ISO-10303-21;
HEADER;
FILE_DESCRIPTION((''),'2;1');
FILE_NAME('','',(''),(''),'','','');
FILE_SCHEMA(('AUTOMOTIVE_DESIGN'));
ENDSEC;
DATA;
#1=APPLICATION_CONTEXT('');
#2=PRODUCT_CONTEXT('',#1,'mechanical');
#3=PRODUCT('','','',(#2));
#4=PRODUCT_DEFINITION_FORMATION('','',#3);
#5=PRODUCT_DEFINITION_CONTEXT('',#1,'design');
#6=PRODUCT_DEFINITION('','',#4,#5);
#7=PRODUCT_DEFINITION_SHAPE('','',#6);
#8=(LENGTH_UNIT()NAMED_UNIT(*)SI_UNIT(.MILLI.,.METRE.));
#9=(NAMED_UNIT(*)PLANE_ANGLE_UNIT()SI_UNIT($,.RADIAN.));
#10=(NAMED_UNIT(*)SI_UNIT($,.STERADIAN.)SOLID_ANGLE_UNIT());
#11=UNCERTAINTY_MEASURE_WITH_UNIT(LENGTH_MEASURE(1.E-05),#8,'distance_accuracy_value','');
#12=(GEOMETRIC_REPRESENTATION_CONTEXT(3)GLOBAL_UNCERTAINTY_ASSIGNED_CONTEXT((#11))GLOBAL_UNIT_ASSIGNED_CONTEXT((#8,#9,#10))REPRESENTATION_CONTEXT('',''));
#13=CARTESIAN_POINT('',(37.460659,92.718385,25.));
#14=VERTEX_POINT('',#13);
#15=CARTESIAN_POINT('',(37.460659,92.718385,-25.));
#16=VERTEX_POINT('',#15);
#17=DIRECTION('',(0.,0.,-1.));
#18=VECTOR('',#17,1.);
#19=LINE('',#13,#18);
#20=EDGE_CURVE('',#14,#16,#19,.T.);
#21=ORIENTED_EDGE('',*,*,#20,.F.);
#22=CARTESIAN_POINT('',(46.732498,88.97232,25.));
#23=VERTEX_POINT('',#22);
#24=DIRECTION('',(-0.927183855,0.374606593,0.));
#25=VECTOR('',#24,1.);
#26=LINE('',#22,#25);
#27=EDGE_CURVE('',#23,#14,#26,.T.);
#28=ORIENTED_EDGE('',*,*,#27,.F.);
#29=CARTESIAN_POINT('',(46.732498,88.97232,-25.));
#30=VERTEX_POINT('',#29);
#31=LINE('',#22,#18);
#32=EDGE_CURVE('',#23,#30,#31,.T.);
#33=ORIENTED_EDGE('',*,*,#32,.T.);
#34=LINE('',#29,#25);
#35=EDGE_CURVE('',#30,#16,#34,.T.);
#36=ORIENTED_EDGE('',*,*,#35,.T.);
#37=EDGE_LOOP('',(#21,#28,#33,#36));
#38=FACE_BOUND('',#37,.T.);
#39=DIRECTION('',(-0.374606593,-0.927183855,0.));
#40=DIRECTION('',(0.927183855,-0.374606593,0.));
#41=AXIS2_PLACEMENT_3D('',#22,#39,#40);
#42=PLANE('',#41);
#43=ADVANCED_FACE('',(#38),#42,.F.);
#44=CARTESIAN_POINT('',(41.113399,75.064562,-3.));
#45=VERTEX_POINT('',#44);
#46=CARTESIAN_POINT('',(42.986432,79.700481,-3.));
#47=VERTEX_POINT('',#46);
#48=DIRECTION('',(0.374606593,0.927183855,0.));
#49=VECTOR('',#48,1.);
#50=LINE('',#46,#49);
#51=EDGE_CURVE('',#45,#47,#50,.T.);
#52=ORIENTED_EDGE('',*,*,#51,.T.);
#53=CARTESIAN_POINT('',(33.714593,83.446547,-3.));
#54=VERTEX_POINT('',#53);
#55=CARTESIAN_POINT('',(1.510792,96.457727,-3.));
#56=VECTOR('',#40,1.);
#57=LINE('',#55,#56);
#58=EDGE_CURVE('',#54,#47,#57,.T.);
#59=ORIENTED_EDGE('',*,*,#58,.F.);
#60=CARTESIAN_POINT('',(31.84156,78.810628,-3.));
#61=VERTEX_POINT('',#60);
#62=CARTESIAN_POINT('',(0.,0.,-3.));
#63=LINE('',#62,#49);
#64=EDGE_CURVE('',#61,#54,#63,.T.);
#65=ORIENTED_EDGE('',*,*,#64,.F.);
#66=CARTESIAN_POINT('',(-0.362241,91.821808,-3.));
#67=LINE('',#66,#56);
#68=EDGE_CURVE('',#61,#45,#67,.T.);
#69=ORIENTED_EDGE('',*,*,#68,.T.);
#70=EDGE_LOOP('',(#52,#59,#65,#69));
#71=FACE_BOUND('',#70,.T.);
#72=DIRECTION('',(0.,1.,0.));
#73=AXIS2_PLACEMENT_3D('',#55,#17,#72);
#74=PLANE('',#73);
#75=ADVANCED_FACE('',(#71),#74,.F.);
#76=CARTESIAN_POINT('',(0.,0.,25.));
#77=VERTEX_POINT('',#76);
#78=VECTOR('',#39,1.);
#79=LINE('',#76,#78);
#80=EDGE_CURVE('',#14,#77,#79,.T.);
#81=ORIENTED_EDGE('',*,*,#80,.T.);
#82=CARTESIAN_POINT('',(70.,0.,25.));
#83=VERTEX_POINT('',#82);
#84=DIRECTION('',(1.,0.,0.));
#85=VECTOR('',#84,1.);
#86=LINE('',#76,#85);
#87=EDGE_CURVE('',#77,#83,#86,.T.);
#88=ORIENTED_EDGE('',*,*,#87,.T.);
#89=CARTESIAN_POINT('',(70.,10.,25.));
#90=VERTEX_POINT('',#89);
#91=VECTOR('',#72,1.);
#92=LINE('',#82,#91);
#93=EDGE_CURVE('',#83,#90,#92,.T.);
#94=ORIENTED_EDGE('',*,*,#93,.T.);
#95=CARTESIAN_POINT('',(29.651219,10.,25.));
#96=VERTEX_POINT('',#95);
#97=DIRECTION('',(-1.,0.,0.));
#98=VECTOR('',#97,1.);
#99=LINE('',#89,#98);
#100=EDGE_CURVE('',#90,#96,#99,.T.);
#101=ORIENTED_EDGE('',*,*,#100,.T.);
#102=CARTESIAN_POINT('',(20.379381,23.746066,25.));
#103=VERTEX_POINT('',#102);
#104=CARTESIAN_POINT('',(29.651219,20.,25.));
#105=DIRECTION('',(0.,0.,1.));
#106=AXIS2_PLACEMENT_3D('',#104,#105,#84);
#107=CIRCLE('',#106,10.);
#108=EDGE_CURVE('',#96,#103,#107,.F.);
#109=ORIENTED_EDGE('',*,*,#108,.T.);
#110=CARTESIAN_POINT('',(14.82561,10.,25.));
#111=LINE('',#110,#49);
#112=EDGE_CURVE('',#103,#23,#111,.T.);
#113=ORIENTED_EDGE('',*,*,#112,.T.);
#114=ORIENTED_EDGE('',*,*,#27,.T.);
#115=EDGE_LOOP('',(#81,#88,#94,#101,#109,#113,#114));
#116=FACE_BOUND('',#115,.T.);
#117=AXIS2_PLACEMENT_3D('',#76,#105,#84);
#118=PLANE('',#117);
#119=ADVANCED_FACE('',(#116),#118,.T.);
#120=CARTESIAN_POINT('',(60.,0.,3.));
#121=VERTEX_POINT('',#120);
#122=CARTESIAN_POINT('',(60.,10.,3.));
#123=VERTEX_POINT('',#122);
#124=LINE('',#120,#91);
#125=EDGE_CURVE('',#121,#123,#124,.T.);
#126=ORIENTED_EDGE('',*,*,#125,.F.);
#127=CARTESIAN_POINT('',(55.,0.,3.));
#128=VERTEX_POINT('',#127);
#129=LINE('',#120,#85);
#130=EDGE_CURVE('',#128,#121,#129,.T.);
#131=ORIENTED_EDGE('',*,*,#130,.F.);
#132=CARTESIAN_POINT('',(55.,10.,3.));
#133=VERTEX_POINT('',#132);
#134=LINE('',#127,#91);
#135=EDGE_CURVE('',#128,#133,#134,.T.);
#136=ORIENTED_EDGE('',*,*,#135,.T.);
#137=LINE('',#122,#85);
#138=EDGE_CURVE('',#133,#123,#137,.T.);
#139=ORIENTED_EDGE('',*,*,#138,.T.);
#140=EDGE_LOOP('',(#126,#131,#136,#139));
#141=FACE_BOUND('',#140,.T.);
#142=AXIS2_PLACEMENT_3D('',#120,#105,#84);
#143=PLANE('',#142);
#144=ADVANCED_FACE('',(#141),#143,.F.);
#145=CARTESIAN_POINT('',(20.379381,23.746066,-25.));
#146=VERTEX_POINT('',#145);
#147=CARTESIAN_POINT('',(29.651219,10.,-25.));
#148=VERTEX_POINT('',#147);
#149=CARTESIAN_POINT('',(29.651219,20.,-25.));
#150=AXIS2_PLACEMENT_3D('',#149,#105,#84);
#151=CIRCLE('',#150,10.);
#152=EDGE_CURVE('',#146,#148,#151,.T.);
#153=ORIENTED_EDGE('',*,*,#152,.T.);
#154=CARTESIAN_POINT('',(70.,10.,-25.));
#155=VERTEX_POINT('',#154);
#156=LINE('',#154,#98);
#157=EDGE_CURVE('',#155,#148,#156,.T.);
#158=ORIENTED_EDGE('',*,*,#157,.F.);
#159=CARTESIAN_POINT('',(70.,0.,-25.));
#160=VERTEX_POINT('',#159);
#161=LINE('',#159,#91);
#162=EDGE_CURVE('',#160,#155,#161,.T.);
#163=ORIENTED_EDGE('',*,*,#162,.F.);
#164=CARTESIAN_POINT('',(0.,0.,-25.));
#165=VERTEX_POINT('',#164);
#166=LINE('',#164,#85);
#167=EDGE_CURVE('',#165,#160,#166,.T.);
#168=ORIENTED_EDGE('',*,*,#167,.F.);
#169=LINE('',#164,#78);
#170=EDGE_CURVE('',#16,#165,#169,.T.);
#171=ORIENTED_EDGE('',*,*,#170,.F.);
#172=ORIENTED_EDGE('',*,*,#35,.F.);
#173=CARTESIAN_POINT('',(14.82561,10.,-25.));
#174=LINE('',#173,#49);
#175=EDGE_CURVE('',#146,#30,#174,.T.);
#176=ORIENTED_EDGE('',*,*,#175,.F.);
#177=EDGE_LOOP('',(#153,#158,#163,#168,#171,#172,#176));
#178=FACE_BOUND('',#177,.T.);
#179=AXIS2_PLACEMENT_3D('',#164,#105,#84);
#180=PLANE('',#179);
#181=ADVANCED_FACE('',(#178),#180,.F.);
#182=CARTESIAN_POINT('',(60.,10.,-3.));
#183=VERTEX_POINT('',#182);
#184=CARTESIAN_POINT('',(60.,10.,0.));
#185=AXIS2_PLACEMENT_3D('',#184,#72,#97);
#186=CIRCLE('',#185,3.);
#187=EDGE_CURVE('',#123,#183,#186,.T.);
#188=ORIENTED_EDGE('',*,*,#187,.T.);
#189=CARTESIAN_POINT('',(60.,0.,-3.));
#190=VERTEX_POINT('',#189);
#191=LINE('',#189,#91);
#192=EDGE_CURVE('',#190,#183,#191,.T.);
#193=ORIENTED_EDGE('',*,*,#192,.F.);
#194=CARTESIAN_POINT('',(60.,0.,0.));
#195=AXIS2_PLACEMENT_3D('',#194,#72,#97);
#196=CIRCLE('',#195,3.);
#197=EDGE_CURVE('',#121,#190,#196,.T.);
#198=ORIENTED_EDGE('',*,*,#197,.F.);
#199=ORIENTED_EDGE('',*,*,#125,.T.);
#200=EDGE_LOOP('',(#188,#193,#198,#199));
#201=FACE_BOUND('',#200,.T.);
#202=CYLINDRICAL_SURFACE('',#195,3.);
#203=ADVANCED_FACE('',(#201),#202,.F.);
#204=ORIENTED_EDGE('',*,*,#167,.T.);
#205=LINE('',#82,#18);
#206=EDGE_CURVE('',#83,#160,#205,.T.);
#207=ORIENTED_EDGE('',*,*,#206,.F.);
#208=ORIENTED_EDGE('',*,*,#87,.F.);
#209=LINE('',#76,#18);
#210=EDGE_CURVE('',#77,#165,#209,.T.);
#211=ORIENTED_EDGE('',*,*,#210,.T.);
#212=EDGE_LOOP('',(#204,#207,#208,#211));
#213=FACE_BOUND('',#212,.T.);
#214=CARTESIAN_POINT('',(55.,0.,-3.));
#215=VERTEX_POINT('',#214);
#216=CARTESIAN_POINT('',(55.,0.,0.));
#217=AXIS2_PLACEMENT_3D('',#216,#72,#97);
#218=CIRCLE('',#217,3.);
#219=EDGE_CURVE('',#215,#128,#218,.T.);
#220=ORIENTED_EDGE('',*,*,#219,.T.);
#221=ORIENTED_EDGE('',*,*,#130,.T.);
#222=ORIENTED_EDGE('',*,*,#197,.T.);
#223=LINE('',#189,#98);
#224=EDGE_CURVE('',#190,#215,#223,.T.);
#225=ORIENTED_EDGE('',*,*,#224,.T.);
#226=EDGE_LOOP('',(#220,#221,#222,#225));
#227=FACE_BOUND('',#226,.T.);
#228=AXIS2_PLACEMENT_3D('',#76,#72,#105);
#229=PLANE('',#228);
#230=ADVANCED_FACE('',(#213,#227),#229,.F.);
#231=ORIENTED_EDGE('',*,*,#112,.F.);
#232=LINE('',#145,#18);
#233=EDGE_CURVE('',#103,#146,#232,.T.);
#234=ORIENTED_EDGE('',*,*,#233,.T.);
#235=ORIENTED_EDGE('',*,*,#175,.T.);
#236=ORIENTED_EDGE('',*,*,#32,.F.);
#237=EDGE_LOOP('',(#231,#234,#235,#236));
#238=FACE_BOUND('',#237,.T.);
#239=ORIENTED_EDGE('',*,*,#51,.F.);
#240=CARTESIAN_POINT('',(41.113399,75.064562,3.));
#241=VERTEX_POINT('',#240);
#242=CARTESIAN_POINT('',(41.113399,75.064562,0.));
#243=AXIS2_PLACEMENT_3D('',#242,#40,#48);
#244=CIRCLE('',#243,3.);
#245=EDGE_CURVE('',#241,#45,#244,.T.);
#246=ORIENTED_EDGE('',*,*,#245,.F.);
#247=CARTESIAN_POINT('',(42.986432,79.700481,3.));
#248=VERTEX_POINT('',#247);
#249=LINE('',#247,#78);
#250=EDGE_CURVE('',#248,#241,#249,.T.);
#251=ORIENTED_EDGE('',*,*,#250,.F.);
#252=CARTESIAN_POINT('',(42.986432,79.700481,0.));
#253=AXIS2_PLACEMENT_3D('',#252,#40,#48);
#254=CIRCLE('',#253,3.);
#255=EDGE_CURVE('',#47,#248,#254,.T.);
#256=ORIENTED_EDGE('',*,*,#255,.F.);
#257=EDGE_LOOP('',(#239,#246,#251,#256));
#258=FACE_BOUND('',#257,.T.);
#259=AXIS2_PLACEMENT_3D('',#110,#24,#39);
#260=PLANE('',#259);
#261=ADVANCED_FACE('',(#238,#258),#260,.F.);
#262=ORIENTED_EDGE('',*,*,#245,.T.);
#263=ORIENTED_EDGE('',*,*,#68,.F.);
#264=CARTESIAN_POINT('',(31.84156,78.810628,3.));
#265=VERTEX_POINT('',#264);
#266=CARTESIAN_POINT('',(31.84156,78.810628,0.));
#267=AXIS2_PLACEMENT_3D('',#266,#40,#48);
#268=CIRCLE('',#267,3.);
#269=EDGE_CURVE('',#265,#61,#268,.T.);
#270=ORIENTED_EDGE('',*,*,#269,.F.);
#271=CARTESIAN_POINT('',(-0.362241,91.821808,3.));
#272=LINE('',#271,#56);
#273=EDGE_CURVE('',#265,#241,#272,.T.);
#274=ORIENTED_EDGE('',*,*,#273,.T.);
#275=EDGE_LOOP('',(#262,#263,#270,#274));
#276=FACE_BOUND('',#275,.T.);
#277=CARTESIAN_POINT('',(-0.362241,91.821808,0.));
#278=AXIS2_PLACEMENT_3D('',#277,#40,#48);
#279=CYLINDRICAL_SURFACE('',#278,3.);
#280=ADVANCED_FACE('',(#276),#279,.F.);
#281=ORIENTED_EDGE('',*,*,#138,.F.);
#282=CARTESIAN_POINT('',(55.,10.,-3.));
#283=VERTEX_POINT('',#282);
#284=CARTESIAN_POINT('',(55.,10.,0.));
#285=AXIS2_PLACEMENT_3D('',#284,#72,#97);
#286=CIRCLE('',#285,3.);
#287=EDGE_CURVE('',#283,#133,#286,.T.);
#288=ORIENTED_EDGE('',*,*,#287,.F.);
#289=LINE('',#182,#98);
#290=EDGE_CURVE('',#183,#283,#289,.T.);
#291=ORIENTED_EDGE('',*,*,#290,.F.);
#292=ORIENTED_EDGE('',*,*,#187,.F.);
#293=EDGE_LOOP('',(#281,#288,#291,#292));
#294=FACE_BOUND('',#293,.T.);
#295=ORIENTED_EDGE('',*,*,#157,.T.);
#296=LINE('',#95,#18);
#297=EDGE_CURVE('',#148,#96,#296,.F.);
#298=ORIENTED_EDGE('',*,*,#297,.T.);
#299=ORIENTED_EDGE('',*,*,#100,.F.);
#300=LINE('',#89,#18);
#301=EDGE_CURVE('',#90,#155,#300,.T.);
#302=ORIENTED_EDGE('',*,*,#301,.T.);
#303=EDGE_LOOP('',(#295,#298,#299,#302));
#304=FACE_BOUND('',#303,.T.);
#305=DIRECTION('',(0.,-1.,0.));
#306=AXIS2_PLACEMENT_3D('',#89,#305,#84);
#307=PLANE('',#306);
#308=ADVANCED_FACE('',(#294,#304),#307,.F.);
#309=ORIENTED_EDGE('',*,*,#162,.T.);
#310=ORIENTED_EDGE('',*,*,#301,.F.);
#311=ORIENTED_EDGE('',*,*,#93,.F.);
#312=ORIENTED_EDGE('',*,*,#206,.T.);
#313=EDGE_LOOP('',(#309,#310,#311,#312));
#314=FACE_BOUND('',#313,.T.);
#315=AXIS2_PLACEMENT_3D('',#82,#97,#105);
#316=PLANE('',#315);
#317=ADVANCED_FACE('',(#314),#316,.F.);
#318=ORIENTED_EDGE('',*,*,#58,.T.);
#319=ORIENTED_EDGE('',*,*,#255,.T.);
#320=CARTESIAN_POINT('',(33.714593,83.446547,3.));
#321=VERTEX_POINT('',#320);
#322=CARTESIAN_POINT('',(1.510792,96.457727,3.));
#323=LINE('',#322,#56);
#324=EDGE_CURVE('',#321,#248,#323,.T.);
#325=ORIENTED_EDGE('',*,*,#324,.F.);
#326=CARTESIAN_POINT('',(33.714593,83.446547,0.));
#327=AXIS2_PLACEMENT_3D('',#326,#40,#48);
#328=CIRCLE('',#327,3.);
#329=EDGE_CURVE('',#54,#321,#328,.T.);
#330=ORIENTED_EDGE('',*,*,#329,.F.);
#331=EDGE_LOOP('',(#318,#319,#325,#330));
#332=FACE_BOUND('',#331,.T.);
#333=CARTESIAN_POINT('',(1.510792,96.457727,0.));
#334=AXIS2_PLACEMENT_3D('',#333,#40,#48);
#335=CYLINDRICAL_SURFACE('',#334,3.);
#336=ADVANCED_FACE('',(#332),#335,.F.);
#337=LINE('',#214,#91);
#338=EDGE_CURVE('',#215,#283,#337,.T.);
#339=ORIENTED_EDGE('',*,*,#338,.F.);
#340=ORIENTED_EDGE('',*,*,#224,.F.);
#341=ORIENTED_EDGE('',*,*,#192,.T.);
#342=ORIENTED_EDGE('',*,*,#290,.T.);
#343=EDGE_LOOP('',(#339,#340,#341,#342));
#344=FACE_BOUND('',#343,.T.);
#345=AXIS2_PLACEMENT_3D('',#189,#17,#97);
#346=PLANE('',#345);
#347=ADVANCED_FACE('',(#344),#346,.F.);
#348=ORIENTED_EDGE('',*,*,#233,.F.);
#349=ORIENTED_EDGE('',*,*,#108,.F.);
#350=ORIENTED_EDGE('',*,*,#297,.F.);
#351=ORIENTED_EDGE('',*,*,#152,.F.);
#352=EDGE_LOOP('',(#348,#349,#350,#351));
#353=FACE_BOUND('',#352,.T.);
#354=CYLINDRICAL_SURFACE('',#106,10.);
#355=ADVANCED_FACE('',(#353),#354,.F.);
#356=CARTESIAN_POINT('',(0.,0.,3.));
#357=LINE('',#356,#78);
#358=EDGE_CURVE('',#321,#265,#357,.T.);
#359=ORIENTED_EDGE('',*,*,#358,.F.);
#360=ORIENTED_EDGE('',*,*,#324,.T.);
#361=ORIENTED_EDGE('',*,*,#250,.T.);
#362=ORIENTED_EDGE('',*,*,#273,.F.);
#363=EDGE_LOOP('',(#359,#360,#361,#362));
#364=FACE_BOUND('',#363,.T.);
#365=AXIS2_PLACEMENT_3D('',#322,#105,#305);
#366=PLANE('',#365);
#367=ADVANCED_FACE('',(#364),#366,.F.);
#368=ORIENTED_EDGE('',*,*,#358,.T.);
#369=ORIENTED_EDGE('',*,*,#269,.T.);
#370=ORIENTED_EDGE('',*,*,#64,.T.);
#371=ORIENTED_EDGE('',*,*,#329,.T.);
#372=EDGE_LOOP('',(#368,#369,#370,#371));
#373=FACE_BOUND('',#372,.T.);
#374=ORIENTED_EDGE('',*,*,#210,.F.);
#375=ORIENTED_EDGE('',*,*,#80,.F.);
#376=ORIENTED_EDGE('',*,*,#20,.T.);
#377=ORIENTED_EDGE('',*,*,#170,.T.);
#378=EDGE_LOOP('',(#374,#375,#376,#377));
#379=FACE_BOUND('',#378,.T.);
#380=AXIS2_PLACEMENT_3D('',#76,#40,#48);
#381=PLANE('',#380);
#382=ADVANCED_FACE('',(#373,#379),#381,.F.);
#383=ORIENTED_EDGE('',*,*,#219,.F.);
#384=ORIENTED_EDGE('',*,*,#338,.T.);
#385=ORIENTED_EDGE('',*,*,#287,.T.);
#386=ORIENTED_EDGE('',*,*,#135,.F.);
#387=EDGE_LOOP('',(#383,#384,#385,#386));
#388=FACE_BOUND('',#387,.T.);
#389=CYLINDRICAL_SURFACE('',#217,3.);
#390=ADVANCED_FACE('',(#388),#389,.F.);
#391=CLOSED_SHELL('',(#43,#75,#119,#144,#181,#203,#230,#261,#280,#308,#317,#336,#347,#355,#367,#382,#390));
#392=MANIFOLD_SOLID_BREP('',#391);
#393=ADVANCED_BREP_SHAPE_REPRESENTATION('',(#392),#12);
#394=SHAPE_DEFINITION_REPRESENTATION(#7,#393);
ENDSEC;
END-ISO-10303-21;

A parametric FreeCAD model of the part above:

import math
import FreeCAD as App
import Part
import Sketcher
Q = App.Units.Quantity


def edges_at(feature, points):
    """Names of the edges that pass closest to the given points."""
    edges = feature.Shape.Edges
    near = lambda p: min(range(len(edges)), key=lambda i: edges[i].distToShape(Part.Vertex(*p))[0])
    return sorted({f"Edge{near(p) + 1}" for p in points})

doc = App.newDocument("Part")
params = doc.addObject("Spreadsheet::Sheet", "Params")
for row, (alias, value) in enumerate([
    ("sketch1_width", "70 mm"),
    ("sketch1_height", "10 mm"),
    ("sketch1_length", "100 mm"),
    ("sketch1_length2", "10 mm"),
    ("pad1_length", "50 mm"),
    ("sketch2_radius", "3 mm"),
    ("sketch2_width", "5 mm"),
    ("sketch3_radius", "3 mm"),
    ("sketch3_height", "5 mm"),
    ("fillet_radius", "10 mm"),
], start=1):
    params.set(f"A{row}", alias)
    params.set(f"B{row}", "=" + value)
    params.setAlias(f"B{row}", alias)

body = doc.addObject("PartDesign::Body", "Body")

# Sketch on XY plane
sketch1 = body.newObject("Sketcher::SketchObject", "Sketch")
sketch1.AttachmentSupport = (doc.getObject("XY_Plane"), [""])
sketch1.MapMode = "FlatFace"
sketch1.addGeometry([
    Part.LineSegment(App.Vector(37, 93, 0), App.Vector(0, 0, 0)),  # 0
    Part.LineSegment(App.Vector(0, 0, 0), App.Vector(70, 0, 0)),  # 1
    Part.LineSegment(App.Vector(70, 0, 0), App.Vector(70, 10, 0)),  # 2
    Part.LineSegment(App.Vector(70, 10, 0), App.Vector(15, 10, 0)),  # 3
    Part.LineSegment(App.Vector(15, 10, 0), App.Vector(47, 89, 0)),  # 4
    Part.LineSegment(App.Vector(47, 89, 0), App.Vector(37, 93, 0)),  # 5
], False)
sketch1.addConstraint([
    Sketcher.Constraint("Coincident", 0, 2, 1, 1),
    Sketcher.Constraint("Coincident", 1, 2, 2, 1),
    Sketcher.Constraint("Coincident", 2, 2, 3, 1),
    Sketcher.Constraint("Coincident", 3, 2, 4, 1),
    Sketcher.Constraint("Coincident", 4, 2, 5, 1),
    Sketcher.Constraint("Coincident", 5, 2, 0, 1),
    Sketcher.Constraint("Horizontal", 1),
    Sketcher.Constraint("Vertical", 2),
    Sketcher.Constraint("Horizontal", 3),
    Sketcher.Constraint("Coincident", 0, 2, -1, 1),
    Sketcher.Constraint("Parallel", 0, 4),
    Sketcher.Constraint("Perpendicular", 4, 5),
    Sketcher.Constraint("DistanceX", 1, 1, 1, 2, 70.0),
    Sketcher.Constraint("DistanceY", 2, 1, 2, 2, 10.0),
    Sketcher.Constraint("Angle", 0, Q("-112 deg")),
    Sketcher.Constraint("Distance", 0, 100.0),
    Sketcher.Constraint("Distance", 5, 10.0),
])
sketch1.setExpression("Constraints[12]", "Params.sketch1_width")
sketch1.setExpression("Constraints[13]", "Params.sketch1_height")
sketch1.setExpression("Constraints[15]", "Params.sketch1_length")
sketch1.setExpression("Constraints[16]", "Params.sketch1_length2")
pad1 = body.newObject("PartDesign::Pad", "Pad")
pad1.Profile = sketch1
pad1.setExpression("Length", "Params.pad1_length")
pad1.Midplane = True

# Sketch on XZ plane
sketch2 = body.newObject("Sketcher::SketchObject", "Sketch001")
sketch2.AttachmentSupport = (doc.getObject("XZ_Plane"), [""])
sketch2.MapMode = "FlatFace"
sketch2.AttachmentOffset = App.Placement(App.Vector(0, 0, -10), App.Rotation())
sketch2.addGeometry([
    Part.LineSegment(App.Vector(55, 3, 0), App.Vector(60, 3, 0)),
    Part.ArcOfCircle(Part.Circle(App.Vector(60, 0, 0), App.Vector(0, 0, 1), 3), math.radians(-90), math.radians(90)),
    Part.LineSegment(App.Vector(60, -3, 0), App.Vector(55, -3, 0)),
    Part.ArcOfCircle(Part.Circle(App.Vector(55, 0, 0), App.Vector(0, 0, 1), 3), math.radians(90), math.radians(270)),
], False)
sketch2.addConstraint([
    Sketcher.Constraint("Tangent", 0, 2, 1, 2),
    Sketcher.Constraint("Tangent", 1, 1, 2, 1),
    Sketcher.Constraint("Tangent", 2, 2, 3, 2),
    Sketcher.Constraint("Tangent", 3, 1, 0, 1),
    Sketcher.Constraint("Horizontal", 0),
    Sketcher.Constraint("Horizontal", 2),
    Sketcher.Constraint("PointOnObject", 1, 3, -1),
    Sketcher.Constraint("Radius", 1, 3.0),
    Sketcher.Constraint("DistanceX", 0, 1, 0, 2, 5.0),
    Sketcher.Constraint("DistanceX", -1, 1, 1, 3, 60.0),
])
sketch2.setExpression("Constraints[7]", "Params.sketch2_radius")
sketch2.setExpression("Constraints[8]", "Params.sketch2_width")
pocket1 = body.newObject("PartDesign::Pocket", "Pocket")
pocket1.Profile = sketch2
pocket1.Type = "ThroughAll"
pocket1.Reversed = True

# Sketch on an angled plane
sketch3 = body.newObject("Sketcher::SketchObject", "Sketch002")
sketch3.Placement = App.Placement(App.Vector(9.271839, -3.746066, 0), App.Rotation(App.Vector(0, 0, -1), App.Vector(0.374606593, 0.927183855, 0), App.Vector(0.927183855, -0.374606593, 0), "ZXY"))
sketch3.addGeometry([
    Part.LineSegment(App.Vector(3, 85, 0), App.Vector(3, 90, 0)),
    Part.ArcOfCircle(Part.Circle(App.Vector(0, 90, 0), App.Vector(0, 0, 1), 3), math.radians(0), math.radians(180)),
    Part.LineSegment(App.Vector(-3, 90, 0), App.Vector(-3, 85, 0)),
    Part.ArcOfCircle(Part.Circle(App.Vector(0, 85, 0), App.Vector(0, 0, 1), 3), math.radians(180), math.radians(360)),
], False)
sketch3.addConstraint([
    Sketcher.Constraint("Tangent", 0, 2, 1, 1),
    Sketcher.Constraint("Tangent", 1, 2, 2, 1),
    Sketcher.Constraint("Tangent", 2, 2, 3, 1),
    Sketcher.Constraint("Tangent", 3, 2, 0, 1),
    Sketcher.Constraint("Vertical", 0),
    Sketcher.Constraint("Vertical", 2),
    Sketcher.Constraint("PointOnObject", 1, 3, -2),
    Sketcher.Constraint("Radius", 1, 3.0),
    Sketcher.Constraint("DistanceY", 0, 1, 0, 2, 5.0),
    Sketcher.Constraint("DistanceY", -1, 1, 1, 3, 90.0),
])
sketch3.setExpression("Constraints[7]", "Params.sketch3_radius")
sketch3.setExpression("Constraints[8]", "Params.sketch3_height")
pocket2 = body.newObject("PartDesign::Pocket", "Pocket001")
pocket2.Profile = sketch3
pocket2.Type = "ThroughAll"
doc.recompute()

fillet = body.newObject("PartDesign::Fillet", "Fillet")
fillet.Base = (pocket2, edges_at(pocket2, [(14.826, 10, 0)]))
fillet.setExpression("Radius", "Params.fillet_radius")

doc.recompute()
